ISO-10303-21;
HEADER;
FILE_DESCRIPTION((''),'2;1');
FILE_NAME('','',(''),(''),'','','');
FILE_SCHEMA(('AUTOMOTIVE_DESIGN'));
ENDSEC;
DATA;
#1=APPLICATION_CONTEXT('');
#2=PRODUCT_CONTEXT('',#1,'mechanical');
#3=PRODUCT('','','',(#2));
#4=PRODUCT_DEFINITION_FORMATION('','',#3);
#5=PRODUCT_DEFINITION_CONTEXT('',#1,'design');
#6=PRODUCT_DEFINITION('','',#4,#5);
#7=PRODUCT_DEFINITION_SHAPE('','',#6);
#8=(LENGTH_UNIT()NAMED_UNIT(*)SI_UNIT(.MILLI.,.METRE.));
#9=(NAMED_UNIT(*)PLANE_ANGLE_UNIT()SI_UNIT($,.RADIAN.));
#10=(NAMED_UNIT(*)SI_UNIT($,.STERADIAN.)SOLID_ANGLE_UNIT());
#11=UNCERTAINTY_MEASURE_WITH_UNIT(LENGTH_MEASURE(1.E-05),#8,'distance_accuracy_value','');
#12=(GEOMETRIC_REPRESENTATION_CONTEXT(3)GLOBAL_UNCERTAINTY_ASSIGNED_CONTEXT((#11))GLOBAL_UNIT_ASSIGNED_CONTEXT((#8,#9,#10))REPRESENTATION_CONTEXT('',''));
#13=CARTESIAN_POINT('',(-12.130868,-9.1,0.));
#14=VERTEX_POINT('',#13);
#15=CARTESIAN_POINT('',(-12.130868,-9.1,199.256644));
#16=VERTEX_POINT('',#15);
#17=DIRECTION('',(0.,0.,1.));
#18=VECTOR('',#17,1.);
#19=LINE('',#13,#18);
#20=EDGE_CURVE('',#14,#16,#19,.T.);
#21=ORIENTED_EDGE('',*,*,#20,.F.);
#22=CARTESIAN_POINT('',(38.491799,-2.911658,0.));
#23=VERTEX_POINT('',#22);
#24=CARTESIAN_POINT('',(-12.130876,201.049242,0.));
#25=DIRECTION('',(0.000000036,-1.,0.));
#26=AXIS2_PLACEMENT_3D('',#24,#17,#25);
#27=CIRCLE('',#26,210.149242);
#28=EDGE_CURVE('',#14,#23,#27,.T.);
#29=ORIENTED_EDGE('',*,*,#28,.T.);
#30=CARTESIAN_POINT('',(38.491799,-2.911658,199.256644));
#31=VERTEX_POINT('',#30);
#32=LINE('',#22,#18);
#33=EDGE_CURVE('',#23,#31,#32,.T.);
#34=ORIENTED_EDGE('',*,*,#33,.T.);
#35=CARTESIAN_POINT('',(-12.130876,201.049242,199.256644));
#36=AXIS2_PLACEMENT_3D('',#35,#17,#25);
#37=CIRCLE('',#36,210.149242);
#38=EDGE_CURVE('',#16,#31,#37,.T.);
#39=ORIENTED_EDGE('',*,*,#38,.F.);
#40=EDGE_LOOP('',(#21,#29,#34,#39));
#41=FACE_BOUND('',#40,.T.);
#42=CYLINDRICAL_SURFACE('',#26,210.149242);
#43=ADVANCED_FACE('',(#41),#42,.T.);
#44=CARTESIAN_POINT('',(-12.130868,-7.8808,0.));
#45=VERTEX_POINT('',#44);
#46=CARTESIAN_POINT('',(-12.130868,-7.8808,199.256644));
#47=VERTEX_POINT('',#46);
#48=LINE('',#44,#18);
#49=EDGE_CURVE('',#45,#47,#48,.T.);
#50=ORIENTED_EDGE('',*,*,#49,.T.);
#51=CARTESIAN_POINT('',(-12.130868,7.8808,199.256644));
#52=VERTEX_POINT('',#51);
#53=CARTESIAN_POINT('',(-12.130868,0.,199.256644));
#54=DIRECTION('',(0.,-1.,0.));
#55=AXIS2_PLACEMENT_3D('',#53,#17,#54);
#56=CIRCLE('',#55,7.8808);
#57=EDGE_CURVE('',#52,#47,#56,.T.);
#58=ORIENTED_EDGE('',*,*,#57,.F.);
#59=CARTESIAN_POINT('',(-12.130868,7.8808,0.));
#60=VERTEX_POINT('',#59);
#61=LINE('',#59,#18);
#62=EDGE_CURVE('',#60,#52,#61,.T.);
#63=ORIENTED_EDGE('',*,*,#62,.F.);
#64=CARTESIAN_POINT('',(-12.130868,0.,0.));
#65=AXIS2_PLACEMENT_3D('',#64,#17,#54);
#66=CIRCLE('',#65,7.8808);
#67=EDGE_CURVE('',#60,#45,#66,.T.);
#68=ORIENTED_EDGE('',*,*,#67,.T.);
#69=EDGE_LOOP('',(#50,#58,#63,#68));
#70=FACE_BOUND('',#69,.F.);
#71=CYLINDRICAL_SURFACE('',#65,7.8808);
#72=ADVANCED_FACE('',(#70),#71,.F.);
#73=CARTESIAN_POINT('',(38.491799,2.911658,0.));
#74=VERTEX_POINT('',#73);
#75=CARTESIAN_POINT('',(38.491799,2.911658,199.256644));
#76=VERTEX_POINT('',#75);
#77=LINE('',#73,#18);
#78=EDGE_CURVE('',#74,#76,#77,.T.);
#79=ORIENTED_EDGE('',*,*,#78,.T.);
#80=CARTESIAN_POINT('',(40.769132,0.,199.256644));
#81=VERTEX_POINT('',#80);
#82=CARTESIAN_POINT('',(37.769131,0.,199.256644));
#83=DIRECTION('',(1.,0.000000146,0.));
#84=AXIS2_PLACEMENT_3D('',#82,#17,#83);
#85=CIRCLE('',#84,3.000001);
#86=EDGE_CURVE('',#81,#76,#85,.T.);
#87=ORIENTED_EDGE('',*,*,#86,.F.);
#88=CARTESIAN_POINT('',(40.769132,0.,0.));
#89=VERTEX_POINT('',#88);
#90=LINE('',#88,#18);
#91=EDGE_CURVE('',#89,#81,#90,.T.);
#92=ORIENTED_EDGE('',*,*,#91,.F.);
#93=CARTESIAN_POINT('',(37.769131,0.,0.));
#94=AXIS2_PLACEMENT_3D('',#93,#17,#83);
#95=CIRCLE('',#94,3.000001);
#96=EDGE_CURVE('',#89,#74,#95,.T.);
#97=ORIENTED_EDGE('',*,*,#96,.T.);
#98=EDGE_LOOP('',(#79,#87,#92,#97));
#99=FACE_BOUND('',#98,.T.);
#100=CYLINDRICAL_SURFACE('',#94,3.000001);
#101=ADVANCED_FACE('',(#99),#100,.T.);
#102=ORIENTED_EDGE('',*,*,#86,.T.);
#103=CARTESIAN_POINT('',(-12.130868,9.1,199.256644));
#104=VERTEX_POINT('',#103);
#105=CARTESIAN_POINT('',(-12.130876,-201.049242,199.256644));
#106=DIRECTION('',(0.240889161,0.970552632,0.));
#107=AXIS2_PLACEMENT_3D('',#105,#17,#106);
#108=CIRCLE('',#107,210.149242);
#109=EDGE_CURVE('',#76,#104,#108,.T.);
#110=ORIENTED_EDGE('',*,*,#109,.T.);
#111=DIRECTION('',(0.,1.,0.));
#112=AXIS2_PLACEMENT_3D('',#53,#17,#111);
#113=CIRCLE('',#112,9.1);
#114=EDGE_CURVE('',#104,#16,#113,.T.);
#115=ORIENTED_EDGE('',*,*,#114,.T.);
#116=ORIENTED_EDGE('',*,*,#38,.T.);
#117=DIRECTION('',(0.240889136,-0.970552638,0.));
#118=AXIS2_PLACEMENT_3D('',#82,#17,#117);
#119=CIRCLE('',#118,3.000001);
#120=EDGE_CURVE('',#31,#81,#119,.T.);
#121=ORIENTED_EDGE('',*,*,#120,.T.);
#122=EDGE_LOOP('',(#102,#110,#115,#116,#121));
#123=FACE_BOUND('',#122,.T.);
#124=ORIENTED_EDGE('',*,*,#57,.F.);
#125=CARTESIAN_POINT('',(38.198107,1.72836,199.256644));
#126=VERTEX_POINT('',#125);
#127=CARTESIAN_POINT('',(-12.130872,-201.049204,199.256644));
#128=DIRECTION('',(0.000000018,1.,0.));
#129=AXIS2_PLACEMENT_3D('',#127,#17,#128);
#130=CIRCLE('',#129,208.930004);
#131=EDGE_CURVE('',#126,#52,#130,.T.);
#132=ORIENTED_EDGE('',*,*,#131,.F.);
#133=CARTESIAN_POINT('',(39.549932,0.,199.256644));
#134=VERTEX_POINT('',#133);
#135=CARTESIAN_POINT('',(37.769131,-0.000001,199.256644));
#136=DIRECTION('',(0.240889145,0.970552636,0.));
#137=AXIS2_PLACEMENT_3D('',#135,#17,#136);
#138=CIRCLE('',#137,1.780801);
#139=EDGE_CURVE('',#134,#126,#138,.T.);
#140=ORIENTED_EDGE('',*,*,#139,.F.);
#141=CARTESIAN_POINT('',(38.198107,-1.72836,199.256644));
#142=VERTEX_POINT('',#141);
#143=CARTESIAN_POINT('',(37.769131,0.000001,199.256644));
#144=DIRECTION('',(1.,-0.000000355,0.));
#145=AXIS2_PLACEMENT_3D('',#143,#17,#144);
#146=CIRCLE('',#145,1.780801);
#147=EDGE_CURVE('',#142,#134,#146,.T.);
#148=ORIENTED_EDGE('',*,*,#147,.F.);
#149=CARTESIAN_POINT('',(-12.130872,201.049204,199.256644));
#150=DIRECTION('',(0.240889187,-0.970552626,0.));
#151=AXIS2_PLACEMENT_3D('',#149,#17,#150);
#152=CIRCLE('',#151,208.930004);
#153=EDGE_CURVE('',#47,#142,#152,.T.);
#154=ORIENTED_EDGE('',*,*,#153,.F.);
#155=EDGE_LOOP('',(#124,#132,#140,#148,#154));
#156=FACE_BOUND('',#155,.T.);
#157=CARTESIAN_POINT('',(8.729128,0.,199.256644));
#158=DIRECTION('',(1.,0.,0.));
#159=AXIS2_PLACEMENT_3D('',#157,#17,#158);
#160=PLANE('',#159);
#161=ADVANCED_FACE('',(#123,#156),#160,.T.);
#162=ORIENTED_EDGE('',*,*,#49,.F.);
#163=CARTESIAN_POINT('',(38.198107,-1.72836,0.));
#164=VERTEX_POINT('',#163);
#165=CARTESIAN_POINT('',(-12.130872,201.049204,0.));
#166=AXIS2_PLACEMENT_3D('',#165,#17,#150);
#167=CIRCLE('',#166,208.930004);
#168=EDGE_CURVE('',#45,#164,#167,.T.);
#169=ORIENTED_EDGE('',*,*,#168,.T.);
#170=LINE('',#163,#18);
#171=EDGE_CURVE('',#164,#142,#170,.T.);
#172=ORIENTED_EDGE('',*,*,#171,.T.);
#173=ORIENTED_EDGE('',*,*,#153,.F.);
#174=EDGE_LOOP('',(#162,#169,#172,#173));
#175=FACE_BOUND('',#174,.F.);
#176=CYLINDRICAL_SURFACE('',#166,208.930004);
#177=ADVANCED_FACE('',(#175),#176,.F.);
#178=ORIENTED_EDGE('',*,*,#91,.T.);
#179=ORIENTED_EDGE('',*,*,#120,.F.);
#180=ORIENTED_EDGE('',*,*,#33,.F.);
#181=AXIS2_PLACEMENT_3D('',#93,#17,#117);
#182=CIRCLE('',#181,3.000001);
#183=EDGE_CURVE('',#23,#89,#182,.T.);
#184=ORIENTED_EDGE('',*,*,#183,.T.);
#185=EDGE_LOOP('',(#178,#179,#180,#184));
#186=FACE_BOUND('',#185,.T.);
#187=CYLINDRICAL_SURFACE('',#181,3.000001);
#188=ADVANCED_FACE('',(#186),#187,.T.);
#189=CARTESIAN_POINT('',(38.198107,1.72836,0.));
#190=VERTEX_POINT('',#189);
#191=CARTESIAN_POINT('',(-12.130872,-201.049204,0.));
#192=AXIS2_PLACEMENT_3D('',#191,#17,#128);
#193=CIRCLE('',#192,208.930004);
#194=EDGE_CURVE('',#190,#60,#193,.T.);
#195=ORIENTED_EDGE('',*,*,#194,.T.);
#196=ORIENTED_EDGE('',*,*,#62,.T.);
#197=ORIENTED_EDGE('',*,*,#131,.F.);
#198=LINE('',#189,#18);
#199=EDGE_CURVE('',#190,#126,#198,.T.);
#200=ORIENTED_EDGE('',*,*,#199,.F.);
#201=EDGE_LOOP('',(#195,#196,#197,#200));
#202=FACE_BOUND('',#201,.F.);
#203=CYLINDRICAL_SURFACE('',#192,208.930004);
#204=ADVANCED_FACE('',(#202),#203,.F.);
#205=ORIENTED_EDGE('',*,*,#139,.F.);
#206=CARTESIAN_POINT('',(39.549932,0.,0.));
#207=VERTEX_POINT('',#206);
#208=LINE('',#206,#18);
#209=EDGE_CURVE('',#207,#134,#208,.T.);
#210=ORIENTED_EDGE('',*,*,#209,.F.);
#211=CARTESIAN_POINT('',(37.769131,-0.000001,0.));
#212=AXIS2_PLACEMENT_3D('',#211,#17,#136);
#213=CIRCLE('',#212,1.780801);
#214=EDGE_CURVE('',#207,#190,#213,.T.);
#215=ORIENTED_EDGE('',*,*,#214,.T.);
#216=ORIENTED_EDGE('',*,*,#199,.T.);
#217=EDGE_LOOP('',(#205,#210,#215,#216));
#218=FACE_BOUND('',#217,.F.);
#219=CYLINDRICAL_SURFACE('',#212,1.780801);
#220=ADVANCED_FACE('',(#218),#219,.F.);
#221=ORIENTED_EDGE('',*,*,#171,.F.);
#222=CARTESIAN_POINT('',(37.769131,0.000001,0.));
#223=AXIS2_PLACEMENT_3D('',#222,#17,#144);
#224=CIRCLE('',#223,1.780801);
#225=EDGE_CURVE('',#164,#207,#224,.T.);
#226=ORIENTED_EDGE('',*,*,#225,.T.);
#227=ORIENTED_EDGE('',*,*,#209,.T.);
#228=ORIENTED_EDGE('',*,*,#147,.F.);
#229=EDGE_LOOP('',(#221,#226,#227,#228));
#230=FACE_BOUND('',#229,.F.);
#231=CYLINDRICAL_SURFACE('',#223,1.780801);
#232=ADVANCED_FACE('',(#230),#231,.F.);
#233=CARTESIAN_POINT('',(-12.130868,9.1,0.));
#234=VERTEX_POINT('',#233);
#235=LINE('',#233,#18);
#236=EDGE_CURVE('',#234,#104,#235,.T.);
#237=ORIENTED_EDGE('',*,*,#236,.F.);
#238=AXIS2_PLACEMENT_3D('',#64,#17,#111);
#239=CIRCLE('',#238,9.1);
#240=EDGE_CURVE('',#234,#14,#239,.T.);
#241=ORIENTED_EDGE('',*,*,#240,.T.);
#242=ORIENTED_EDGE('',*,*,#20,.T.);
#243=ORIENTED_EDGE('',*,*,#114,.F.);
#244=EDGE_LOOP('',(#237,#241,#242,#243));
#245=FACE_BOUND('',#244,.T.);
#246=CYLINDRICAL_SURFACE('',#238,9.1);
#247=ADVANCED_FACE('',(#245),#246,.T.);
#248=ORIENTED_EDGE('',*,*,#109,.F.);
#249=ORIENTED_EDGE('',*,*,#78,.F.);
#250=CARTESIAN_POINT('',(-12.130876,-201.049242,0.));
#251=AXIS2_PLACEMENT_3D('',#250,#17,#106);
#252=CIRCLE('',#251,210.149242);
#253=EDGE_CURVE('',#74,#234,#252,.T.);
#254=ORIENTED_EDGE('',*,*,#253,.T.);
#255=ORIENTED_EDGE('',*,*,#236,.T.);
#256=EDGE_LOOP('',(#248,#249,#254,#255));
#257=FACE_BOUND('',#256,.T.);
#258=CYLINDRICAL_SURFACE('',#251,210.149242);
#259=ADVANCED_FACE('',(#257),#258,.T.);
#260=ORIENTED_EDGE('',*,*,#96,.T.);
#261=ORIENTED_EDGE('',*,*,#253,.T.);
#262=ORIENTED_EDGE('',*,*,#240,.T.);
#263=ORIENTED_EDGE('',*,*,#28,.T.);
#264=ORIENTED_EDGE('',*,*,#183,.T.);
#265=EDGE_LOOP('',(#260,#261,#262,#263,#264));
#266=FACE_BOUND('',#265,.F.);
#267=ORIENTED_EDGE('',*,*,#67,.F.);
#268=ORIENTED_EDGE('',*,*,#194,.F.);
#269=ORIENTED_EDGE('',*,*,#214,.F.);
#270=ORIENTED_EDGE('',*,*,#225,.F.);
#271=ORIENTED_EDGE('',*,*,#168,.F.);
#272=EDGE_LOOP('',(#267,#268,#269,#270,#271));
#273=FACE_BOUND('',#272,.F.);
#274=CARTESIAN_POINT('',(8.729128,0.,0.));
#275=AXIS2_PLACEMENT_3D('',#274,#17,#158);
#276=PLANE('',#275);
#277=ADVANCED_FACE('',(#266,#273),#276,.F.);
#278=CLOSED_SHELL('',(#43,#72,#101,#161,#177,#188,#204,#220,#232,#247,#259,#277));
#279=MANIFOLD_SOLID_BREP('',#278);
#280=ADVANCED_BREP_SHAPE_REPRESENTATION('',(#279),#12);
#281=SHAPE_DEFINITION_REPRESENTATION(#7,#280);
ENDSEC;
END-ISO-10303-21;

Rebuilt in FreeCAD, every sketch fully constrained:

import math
import FreeCAD as App
import Part
import Sketcher

V = App.Vector

doc = App.newDocument("Part")
params = doc.addObject("Spreadsheet::Sheet", "Params")
for row, (alias, value) in enumerate([
    ("sketch1_radius", "3.000001 mm"),
    ("sketch1_radius2", "9.1 mm"),
], start=1):
    params.set(f"A{row}", alias)
    params.set(f"B{row}", "=" + value)
    params.setAlias(f"B{row}", alias)

body = doc.addObject("PartDesign::Body", "Body")

sketch1 = body.newObject("Sketcher::SketchObject", "Sketch")
sketch1.AttachmentSupport = (doc.getObject("XY_Plane"), [""])
sketch1.MapMode = "FlatFace"
sketch1.addGeometry(Part.ArcOfCircle(Part.Circle(V(-12.130868, 0, 0), V(0, 0, 1), 9.1), math.radians(90), math.radians(270)), False)
sketch1.addGeometry(Part.ArcOfCircle(Part.Circle(V(-12.130876, 201.049242, 0), V(0, 0, 1), 210.149242), math.radians(-89.999998), math.radians(-76.060975)), False)
sketch1.addGeometry(Part.ArcOfCircle(Part.Circle(V(37.769131, 0, 0), V(0, 0, 1), 3.000001), math.radians(-76.060976), math.radians(-0.000008)), False)
sketch1.addGeometry(Part.ArcOfCircle(Part.Circle(V(37.769131, 0, 0), V(0, 0, 1), 3.000001), math.radians(0.000008), math.radians(76.060976)), False)
sketch1.addGeometry(Part.ArcOfCircle(Part.Circle(V(-12.130876, -201.049242, 0), V(0, 0, 1), 210.149242), math.radians(76.060975), math.radians(89.999998)), False)
sketch1.addGeometry(Part.ArcOfCircle(Part.Circle(V(37.769131, 0.000001, 0), V(0, 0, 1), 1.780801), math.radians(-76.060976), math.radians(-0.00002)), False)
sketch1.addGeometry(Part.ArcOfCircle(Part.Circle(V(-12.130872, 201.049204, 0), V(0, 0, 1), 208.930004), math.radians(-89.999999), math.radians(-76.060973)), False)
sketch1.addGeometry(Part.ArcOfCircle(Part.Circle(V(-12.130868, 0, 0), V(0, 0, 1), 7.8808), math.radians(90), math.radians(270)), False)
sketch1.addGeometry(Part.ArcOfCircle(Part.Circle(V(-12.130872, -201.049204, 0), V(0, 0, 1), 208.930004), math.radians(76.060973), math.radians(89.999999)), False)
sketch1.addGeometry(Part.ArcOfCircle(Part.Circle(V(37.769131, -0.000001, 0), V(0, 0, 1), 1.780801), math.radians(0.00002), math.radians(76.060976)), False)
sketch1.addConstraint(Sketcher.Constraint("Coincident", 0, 2, 1, 1))
sketch1.addConstraint(Sketcher.Constraint("Coincident", 1, 2, 2, 1))
sketch1.addConstraint(Sketcher.Constraint("Coincident", 2, 2, 3, 1))
sketch1.addConstraint(Sketcher.Constraint("Coincident", 3, 2, 4, 1))
sketch1.addConstraint(Sketcher.Constraint("Coincident", 4, 2, 0, 1))
sketch1.addConstraint(Sketcher.Constraint("Coincident", 5, 1, 6, 2))
sketch1.addConstraint(Sketcher.Constraint("Coincident", 6, 1, 7, 2))
sketch1.addConstraint(Sketcher.Constraint("Coincident", 7, 1, 8, 2))
sketch1.addConstraint(Sketcher.Constraint("Coincident", 8, 1, 9, 2))
sketch1.addConstraint(Sketcher.Constraint("Coincident", 9, 1, 5, 2))
sketch1.addConstraint(Sketcher.Constraint("Coincident", 3, 3, 2, 3))
sketch1.addConstraint(Sketcher.Constraint("Coincident", 5, 3, 2, 3))
sketch1.addConstraint(Sketcher.Constraint("Coincident", 7, 3, 0, 3))
sketch1.addConstraint(Sketcher.Constraint("Coincident", 9, 3, 2, 3))
sketch1.addConstraint(Sketcher.Constraint("PointOnObject", 0, 3, -1))
sketch1.addConstraint(Sketcher.Constraint("PointOnObject", 2, 3, -1))
sketch1.addConstraint(Sketcher.Constraint("PointOnObject", 2, 2, -1))
sketch1.addConstraint(Sketcher.Constraint("PointOnObject", 9, 1, -1))
sketch1.addConstraint(Sketcher.Constraint("Radius", 2, 3.000001))
sketch1.addConstraint(Sketcher.Constraint("Radius", 0, 9.1))
sketch1.addConstraint(Sketcher.Constraint("Radius", 5, 1.780801))
sketch1.addConstraint(Sketcher.Constraint("Radius", 7, 7.8808))
sketch1.addConstraint(Sketcher.Constraint("DistanceX", 0, 3, 2, 3, 49.899999))
sketch1.addConstraint(Sketcher.Constraint("DistanceX", 0, 2, 9, 3, 49.899999))
sketch1.addConstraint(Sketcher.Constraint("DistanceX", 4, 2, 5, 3, 49.899999))
sketch1.addConstraint(Sketcher.Constraint("DistanceX", 6, 1, 9, 3, 49.899999))
sketch1.addConstraint(Sketcher.Constraint("Radius", 1, 210.149242))
sketch1.addConstraint(Sketcher.Constraint("Radius", 4, 210.149242))
sketch1.addConstraint(Sketcher.Constraint("Radius", 6, 208.930004))
sketch1.addConstraint(Sketcher.Constraint("Radius", 8, 208.930004))
sketch1.addConstraint(Sketcher.Constraint("DistanceX", -1, 1, 1, 2, 38.491799))
sketch1.addConstraint(Sketcher.Constraint("DistanceX", -1, 1, 3, 2, 38.491799))
sketch1.addConstraint(Sketcher.Constraint("DistanceY", 1, 2, 5, 1, 1.183298))
sketch1.addConstraint(Sketcher.Constraint("DistanceX", -1, 1, 2, 3, 37.769131))
sketch1.addConstraint(Sketcher.Constraint("DistanceY", -1, 1, 8, 1, 1.72836))
sketch1.addConstraint(Sketcher.Constraint("DistanceX", 7, 1, -1, 1, 12.130868))
sketch1.setExpression("Constraints[18]", "Params.sketch1_radius")
sketch1.setExpression("Constraints[19]", "Params.sketch1_radius2")

sketch2 = body.newObject("Sketcher::SketchObject", "Sketch001")
sketch2.AttachmentSupport = (doc.getObject("XZ_Plane"), [""])
sketch2.MapMode = "FlatFace"
sketch2.addGeometry(Part.LineSegment(V(-10, 0, 0), V(-10, 199, 0)), False)
sketch2.addConstraint(Sketcher.Constraint("Vertical", 0))
sketch2.addConstraint(Sketcher.Constraint("PointOnObject", 0, 1, -1))
sketch2.addConstraint(Sketcher.Constraint("DistanceX", 0, 1, -1, 1, 10.0))
sketch2.addConstraint(Sketcher.Constraint("DistanceY", 0, 1, 0, 2, 199.256644))
doc.recompute()

additivepipe = body.newObject("PartDesign::AdditivePipe", "AdditivePipe")
additivepipe.Profile = sketch1
additivepipe.Spine = (sketch2, ["Edge1"])

doc.recompute()
